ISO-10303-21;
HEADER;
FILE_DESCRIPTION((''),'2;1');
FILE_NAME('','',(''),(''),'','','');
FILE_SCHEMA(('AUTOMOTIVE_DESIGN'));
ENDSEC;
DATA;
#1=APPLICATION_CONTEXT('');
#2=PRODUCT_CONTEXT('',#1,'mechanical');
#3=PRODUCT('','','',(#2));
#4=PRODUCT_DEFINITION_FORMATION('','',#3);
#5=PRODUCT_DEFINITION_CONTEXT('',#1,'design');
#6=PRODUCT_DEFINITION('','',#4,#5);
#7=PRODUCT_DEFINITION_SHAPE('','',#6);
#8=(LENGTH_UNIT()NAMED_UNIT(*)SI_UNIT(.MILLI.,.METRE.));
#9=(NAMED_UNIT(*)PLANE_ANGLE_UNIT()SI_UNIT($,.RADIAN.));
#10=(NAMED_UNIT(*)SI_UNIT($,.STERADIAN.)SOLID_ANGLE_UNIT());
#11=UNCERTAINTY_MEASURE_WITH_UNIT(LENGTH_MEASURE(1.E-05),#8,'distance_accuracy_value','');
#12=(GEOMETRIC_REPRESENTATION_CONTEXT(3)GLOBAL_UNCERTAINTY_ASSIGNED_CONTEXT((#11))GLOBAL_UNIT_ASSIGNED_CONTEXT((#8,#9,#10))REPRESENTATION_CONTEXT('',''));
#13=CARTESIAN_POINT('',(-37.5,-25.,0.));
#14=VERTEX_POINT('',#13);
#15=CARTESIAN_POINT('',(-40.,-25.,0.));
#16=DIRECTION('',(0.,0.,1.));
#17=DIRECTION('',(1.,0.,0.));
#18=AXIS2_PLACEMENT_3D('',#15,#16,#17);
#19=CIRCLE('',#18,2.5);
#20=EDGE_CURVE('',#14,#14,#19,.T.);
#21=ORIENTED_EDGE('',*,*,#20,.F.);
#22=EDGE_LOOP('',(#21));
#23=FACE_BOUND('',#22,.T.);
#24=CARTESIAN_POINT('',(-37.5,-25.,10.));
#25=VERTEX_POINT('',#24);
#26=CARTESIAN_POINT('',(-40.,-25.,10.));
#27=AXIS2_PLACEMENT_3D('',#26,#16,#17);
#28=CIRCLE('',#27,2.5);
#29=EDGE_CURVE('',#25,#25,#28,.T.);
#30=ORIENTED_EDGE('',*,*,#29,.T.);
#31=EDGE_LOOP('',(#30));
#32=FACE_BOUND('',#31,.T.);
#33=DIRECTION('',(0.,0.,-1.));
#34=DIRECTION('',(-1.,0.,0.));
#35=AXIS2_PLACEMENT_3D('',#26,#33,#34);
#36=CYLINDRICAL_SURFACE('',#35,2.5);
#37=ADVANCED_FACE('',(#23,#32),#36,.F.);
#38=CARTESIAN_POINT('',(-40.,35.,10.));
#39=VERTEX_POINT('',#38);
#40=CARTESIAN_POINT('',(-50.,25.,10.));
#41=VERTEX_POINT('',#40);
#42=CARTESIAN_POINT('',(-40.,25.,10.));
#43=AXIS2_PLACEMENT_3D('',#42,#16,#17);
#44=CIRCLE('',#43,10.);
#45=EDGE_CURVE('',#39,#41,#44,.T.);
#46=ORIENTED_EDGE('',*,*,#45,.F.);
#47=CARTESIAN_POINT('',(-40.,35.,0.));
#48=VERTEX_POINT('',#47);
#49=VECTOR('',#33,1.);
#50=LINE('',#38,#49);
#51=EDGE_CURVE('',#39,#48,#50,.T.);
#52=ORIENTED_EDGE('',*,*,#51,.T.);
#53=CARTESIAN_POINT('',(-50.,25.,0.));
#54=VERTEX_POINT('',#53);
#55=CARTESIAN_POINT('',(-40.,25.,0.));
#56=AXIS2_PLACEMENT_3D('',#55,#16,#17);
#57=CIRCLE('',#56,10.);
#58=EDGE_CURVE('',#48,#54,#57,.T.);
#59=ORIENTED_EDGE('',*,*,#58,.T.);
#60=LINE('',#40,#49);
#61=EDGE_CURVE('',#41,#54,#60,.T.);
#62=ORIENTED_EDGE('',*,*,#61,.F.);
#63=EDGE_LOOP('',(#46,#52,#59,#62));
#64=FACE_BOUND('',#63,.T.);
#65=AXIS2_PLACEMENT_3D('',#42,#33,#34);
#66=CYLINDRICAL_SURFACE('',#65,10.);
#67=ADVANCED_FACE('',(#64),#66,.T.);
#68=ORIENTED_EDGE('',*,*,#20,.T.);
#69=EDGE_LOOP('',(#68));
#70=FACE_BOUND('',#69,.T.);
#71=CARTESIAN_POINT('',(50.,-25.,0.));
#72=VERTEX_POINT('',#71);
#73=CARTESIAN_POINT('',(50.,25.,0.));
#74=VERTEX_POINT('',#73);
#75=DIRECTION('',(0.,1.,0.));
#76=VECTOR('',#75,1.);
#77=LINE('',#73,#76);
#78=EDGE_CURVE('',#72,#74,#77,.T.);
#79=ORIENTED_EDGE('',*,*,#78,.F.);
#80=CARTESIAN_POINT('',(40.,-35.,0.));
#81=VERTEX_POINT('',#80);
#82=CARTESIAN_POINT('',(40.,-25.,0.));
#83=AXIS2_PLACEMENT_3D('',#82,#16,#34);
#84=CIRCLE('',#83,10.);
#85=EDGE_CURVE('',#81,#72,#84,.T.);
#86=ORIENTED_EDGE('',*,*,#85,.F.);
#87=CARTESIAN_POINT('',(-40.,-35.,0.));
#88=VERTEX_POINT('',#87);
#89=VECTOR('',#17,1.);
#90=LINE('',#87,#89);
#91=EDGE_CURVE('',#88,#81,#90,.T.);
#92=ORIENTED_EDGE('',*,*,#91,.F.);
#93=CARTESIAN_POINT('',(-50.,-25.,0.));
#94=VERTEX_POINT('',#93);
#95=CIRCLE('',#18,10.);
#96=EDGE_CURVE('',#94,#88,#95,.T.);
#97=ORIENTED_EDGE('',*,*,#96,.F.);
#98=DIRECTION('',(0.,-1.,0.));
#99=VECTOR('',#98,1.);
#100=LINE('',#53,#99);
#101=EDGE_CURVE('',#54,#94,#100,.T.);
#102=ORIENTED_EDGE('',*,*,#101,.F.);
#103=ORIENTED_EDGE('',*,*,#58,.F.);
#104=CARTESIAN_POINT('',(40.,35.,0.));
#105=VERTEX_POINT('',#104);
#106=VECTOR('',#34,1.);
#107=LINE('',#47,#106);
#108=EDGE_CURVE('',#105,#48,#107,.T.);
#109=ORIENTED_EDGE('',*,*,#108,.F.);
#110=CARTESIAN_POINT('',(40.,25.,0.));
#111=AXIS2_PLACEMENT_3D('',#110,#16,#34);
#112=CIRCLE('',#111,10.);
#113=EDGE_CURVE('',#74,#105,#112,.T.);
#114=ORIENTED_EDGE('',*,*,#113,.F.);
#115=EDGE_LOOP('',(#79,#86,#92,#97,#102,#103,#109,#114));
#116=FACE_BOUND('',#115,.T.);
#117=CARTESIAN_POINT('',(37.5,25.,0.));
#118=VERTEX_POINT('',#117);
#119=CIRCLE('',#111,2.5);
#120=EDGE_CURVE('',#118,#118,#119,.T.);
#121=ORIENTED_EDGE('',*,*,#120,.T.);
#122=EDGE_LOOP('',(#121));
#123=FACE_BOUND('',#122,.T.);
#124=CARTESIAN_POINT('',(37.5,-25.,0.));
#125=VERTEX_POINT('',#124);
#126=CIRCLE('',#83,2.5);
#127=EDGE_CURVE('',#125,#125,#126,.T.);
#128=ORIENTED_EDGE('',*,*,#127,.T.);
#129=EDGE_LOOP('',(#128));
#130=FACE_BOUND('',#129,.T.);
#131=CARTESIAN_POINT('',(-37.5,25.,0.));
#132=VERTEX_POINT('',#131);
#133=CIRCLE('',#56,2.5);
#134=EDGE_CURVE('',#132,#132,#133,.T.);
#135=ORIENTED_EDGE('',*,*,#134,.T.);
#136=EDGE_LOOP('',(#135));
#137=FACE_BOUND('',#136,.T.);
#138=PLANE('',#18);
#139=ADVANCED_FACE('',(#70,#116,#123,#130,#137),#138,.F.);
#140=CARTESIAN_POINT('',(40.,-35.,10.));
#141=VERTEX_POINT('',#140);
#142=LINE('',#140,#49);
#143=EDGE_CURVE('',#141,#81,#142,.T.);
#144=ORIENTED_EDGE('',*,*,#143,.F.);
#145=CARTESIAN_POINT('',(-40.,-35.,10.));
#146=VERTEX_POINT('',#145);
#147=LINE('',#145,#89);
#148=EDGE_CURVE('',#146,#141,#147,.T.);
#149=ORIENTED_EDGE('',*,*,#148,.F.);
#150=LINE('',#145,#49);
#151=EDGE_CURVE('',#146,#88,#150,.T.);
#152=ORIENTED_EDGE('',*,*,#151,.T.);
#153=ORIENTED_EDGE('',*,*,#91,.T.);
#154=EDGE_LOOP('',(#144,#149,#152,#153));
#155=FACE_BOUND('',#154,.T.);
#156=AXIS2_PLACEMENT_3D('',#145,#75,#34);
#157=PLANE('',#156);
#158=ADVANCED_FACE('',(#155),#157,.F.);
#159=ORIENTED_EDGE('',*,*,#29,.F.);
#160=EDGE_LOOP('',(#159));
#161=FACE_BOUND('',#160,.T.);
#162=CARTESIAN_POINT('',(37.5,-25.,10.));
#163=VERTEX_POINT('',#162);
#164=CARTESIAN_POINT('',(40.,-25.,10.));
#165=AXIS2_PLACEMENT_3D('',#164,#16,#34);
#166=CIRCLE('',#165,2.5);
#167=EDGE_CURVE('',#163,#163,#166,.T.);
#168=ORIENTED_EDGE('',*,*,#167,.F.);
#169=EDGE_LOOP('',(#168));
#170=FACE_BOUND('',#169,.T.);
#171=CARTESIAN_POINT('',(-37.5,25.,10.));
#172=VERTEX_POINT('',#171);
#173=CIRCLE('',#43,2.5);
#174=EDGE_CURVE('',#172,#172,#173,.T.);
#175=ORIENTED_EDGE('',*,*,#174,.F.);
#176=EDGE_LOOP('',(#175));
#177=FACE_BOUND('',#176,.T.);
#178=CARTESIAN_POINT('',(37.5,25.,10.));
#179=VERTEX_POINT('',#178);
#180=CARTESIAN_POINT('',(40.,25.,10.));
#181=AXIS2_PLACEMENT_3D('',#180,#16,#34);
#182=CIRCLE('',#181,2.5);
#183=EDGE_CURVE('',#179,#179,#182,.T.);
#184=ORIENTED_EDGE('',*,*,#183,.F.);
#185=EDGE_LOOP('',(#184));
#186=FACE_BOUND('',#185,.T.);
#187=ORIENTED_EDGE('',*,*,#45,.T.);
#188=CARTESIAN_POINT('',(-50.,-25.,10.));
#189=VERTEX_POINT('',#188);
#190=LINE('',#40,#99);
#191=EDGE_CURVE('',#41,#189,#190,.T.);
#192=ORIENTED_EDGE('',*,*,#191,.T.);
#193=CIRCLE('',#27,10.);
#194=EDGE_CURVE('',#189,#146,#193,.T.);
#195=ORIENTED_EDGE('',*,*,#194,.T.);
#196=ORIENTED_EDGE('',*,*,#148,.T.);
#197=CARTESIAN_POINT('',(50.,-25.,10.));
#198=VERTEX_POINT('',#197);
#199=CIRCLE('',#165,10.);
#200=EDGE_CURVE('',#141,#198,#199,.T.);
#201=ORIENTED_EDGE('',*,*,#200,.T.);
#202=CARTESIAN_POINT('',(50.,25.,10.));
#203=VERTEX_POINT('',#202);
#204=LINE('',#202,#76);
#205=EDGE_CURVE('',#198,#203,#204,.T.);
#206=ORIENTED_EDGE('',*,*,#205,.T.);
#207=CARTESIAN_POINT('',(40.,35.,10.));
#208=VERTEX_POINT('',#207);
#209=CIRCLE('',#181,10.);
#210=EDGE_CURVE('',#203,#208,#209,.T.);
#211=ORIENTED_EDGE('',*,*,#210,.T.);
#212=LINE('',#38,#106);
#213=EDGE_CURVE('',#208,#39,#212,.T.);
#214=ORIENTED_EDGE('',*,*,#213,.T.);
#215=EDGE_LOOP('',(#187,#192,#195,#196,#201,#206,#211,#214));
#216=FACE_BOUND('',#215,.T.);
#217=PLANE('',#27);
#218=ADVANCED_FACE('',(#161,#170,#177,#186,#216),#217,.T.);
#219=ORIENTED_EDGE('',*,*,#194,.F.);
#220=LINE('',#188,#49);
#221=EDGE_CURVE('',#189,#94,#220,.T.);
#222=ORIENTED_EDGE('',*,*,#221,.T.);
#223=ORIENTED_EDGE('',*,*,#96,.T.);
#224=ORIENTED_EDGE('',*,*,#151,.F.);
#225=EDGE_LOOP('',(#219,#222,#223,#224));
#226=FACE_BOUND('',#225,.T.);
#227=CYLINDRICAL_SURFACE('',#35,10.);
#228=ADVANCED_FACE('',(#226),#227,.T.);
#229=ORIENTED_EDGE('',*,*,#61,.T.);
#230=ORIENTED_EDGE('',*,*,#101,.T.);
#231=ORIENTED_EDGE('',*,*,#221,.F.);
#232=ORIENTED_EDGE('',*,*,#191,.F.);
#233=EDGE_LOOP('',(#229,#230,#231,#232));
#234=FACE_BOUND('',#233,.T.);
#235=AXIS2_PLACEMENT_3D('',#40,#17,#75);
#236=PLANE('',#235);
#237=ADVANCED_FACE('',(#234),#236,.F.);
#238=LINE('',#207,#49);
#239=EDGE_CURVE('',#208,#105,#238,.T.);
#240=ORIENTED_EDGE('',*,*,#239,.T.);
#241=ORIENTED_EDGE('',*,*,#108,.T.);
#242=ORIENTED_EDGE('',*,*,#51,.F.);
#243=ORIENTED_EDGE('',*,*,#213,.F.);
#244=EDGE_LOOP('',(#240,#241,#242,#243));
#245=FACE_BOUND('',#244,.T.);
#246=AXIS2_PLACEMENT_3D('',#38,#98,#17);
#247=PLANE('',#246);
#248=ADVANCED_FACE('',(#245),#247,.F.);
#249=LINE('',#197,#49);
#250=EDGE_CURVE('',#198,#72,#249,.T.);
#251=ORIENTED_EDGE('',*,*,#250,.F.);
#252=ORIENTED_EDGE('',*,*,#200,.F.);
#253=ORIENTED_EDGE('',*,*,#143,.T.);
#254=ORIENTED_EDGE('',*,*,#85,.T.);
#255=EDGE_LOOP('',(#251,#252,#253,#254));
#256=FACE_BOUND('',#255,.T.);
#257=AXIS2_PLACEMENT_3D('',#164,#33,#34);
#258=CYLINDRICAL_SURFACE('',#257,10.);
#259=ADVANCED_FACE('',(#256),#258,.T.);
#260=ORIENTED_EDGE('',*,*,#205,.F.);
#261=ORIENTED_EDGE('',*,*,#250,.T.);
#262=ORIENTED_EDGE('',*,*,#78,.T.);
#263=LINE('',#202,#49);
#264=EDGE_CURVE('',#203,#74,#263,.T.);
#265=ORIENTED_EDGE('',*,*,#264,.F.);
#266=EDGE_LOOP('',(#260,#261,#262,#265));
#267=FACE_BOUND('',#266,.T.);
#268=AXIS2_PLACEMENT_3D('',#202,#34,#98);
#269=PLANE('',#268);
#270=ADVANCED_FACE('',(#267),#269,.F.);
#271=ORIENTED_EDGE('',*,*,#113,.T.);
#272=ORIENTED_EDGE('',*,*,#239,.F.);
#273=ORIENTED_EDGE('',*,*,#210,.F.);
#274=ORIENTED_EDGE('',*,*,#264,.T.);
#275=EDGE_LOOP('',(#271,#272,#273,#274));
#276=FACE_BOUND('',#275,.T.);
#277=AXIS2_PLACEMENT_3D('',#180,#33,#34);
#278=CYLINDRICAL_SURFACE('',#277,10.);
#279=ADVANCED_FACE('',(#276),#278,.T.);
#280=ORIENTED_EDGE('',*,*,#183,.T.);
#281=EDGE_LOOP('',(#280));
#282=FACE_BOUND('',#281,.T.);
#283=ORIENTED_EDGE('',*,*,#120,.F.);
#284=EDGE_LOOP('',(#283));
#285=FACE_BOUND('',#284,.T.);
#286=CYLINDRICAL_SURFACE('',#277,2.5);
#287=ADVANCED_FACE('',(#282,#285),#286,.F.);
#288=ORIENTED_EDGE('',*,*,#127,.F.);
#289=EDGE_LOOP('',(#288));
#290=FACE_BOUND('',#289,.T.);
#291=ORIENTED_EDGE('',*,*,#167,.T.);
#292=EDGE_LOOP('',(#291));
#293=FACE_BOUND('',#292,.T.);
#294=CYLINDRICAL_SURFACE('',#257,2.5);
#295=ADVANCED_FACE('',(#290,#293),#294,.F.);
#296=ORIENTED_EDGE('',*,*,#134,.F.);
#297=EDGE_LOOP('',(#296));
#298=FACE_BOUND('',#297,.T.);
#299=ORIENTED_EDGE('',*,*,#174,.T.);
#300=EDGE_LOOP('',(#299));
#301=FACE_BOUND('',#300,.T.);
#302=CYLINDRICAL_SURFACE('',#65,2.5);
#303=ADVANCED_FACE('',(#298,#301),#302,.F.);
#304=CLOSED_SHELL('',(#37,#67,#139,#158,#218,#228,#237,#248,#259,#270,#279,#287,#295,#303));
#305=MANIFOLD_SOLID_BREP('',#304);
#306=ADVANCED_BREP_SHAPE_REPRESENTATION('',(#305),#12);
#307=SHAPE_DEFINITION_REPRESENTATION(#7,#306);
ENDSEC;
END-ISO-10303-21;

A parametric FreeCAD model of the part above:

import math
import FreeCAD as App
import Part
import Sketcher
from FreeCAD import Vector
Q = App.Units.Quantity

doc = App.newDocument("Part")
body = doc.addObject("PartDesign::Body", "Body")

sketch1 = doc.addObject("Sketcher::SketchObject", "Sketch")
body.addObject(sketch1)
sketch1.AttachmentSupport = (doc.XY_Plane, [""])
sketch1.MapMode = "FlatFace"
sketch1.addGeometry([
    Part.LineSegment(Vector(40, 35, 0), Vector(-40, 35, 0)),
    Part.ArcOfCircle(Part.Circle(Vector(-40, 25, 0), Vector(0, 0, 1), 10), math.radians(90), math.radians(180)),
    Part.LineSegment(Vector(-50, 25, 0), Vector(-50, -25, 0)),
    Part.ArcOfCircle(Part.Circle(Vector(-40, -25, 0), Vector(0, 0, 1), 10), math.radians(180), math.radians(270)),
    Part.LineSegment(Vector(-40, -35, 0), Vector(40, -35, 0)),
    Part.ArcOfCircle(Part.Circle(Vector(40, -25, 0), Vector(0, 0, 1), 10), math.radians(-90), math.radians(0)),
    Part.LineSegment(Vector(50, -25, 0), Vector(50, 25, 0)),
    Part.ArcOfCircle(Part.Circle(Vector(40, 25, 0), Vector(0, 0, 1), 10), math.radians(0), math.radians(90)),
    Part.Circle(Vector(40, -25, 0), Vector(0, 0, 1), 2.5),
    Part.Circle(Vector(-40, -25, 0), Vector(0, 0, 1), 2.5),
    Part.Circle(Vector(40, 25, 0), Vector(0, 0, 1), 2.5),
    Part.Circle(Vector(-40, 25, 0), Vector(0, 0, 1), 2.5),
], False)
sketch1.addConstraint([
    Sketcher.Constraint("Tangent", 0, 2, 1, 1),
    Sketcher.Constraint("Tangent", 1, 2, 2, 1),
    Sketcher.Constraint("Tangent", 2, 2, 3, 1),
    Sketcher.Constraint("Tangent", 3, 2, 4, 1),
    Sketcher.Constraint("Tangent", 4, 2, 5, 1),
    Sketcher.Constraint("Tangent", 5, 2, 6, 1),
    Sketcher.Constraint("Tangent", 6, 2, 7, 1),
    Sketcher.Constraint("Tangent", 7, 2, 0, 1),
    Sketcher.Constraint("Horizontal", 0),
    Sketcher.Constraint("Vertical", 2),
    Sketcher.Constraint("Horizontal", 4),
    Sketcher.Constraint("Vertical", 6),
    Sketcher.Constraint("Coincident", 8, 3, 5, 3),
    Sketcher.Constraint("Coincident", 9, 3, 3, 3),
    Sketcher.Constraint("Coincident", 10, 3, 7, 3),
    Sketcher.Constraint("Coincident", 11, 3, 1, 3),
    Sketcher.Constraint("Equal", 1, 3),
    Sketcher.Constraint("Equal", 3, 5),
    Sketcher.Constraint("Equal", 5, 7),
    Sketcher.Constraint("Equal", 8, 9),
    Sketcher.Constraint("Equal", 9, 10),
    Sketcher.Constraint("Equal", 10, 11),
    Sketcher.Constraint("Symmetric", 1, 3, 5, 3, -1, 1),
    Sketcher.Constraint("Diameter", 8, Q("5 mm")),
    Sketcher.Constraint("Radius", 1, Q("10 mm")),
    Sketcher.Constraint("DistanceX", 0, 2, 0, 1, Q("80 mm")),
    Sketcher.Constraint("DistanceY", 2, 2, 2, 1, Q("50 mm")),
])
pad1 = doc.addObject("PartDesign::Pad", "Pad")
body.addObject(pad1)
pad1.Profile = sketch1
pad1.Length = 10

doc.recompute()
